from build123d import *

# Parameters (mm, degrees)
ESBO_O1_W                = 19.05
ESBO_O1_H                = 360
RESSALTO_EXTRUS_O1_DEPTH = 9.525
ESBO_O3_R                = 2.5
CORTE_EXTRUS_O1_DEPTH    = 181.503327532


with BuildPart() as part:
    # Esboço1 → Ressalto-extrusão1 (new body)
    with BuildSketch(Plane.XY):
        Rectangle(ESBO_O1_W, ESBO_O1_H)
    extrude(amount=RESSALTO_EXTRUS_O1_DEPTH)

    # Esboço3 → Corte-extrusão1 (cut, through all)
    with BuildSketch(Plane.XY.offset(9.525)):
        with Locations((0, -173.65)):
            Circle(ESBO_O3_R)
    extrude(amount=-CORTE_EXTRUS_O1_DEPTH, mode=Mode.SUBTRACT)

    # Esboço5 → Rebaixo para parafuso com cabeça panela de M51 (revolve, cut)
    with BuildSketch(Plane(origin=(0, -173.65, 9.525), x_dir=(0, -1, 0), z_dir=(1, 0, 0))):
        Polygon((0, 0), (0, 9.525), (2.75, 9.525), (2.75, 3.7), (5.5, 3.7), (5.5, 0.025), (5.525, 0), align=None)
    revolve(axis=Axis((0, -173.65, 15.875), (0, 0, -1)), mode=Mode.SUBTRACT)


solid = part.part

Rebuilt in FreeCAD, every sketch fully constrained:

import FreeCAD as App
import Part
import Sketcher

V = App.Vector
Q = App.Units.Quantity


def add_polygon(sketch, points):
    """Adds a closed chain of lines whose ends are joined by coincident constraints."""
    first, n = sketch.GeometryCount, len(points)
    for a, b in zip(points, points[1:] + points[:1]):
        sketch.addGeometry(Part.LineSegment(App.Vector(*a, 0), App.Vector(*b, 0)), False)
    for i in range(n):
        sketch.addConstraint(Sketcher.Constraint("Coincident", first + i, 2, first + (i + 1) % n, 1))

doc = App.newDocument("Part")
body = doc.addObject("PartDesign::Body", "Body")

# Sketch on XY plane
sketch1 = doc.addObject("Sketcher::SketchObject", "Sketch")
body.addObject(sketch1)
sketch1.AttachmentSupport = (doc.XY_Plane, [""])
sketch1.MapMode = "FlatFace"
add_polygon(sketch1, [(-10, 180), (-10, -180), (10, -180), (10, 180)])  # lines 0-3
sketch1.addConstraint(Sketcher.Constraint("Vertical", 0))
sketch1.addConstraint(Sketcher.Constraint("Horizontal", 1))
sketch1.addConstraint(Sketcher.Constraint("Vertical", 2))
sketch1.addConstraint(Sketcher.Constraint("Horizontal", 3))
sketch1.addConstraint(Sketcher.Constraint("Symmetric", 0, 2, 2, 2, -1, 1))
sketch1.addConstraint(Sketcher.Constraint("DistanceY", 0, 2, 0, 1, 360.0))
sketch1.addConstraint(Sketcher.Constraint("DistanceX", 1, 1, 1, 2, 19.05))
pad1 = doc.addObject("PartDesign::Pad", "Pad")
body.addObject(pad1)
pad1.Profile = sketch1
pad1.Length = 9.525

# Sketch on XY plane
sketch2 = doc.addObject("Sketcher::SketchObject", "Sketch001")
body.addObject(sketch2)
sketch2.AttachmentSupport = (doc.XY_Plane, [""])
sketch2.MapMode = "FlatFace"
sketch2.AttachmentOffset = App.Placement(V(0, 0, 9.525), App.Rotation())
sketch2.addGeometry(Part.Circle(V(0, -173.7, 0), V(0, 0, 1), 2.5), False)
sketch2.addConstraint(Sketcher.Constraint("PointOnObject", 0, 3, -2))
sketch2.addConstraint(Sketcher.Constraint("Diameter", 0, 5.0))
sketch2.addConstraint(Sketcher.Constraint("DistanceY", 0, 3, -1, 1, 173.65))
pocket1 = doc.addObject("PartDesign::Pocket", "Pocket")
body.addObject(pocket1)
pocket1.Profile = sketch2
pocket1.Type = "ThroughAll"

# Sketch on YZ plane
sketch3 = doc.addObject("Sketcher::SketchObject", "Sketch002")
body.addObject(sketch3)
sketch3.AttachmentSupport = (doc.YZ_Plane, [""])
sketch3.MapMode = "FlatFace"
add_polygon(sketch3, [(-173.65, 0), (-173.65, 9.525), (-179.175, 9.525), (-179.15, 9.5), (-179.15, 5.825), (-176.4, 5.825), (-176.4, 0)])  # lines 0-6
sketch3.addGeometry(Part.LineSegment(V(-173.65, 9.525, 0), V(-173.65, 0, 0)), True)  # axis
sketch3.addConstraint(Sketcher.Constraint("Vertical", 0))
sketch3.addConstraint(Sketcher.Constraint("Horizontal", 1))
sketch3.addConstraint(Sketcher.Constraint("Vertical", 3))
sketch3.addConstraint(Sketcher.Constraint("Horizontal", 4))
sketch3.addConstraint(Sketcher.Constraint("Vertical", 5))
sketch3.addConstraint(Sketcher.Constraint("Horizontal", 6))
sketch3.addConstraint(Sketcher.Constraint("Vertical", 7))
sketch3.addConstraint(Sketcher.Constraint("Coincident", 7, 1, 0, 2))
sketch3.addConstraint(Sketcher.Constraint("PointOnObject", 5, 2, -1))
sketch3.addConstraint(Sketcher.Constraint("PointOnObject", 7, 2, -1))
sketch3.addConstraint(Sketcher.Constraint("Equal", 4, 6))
sketch3.addConstraint(Sketcher.Constraint("Angle", 2, Q("-45 deg")))
sketch3.addConstraint(Sketcher.Constraint("DistanceX", 4, 1, 4, 2, 2.75))
sketch3.addConstraint(Sketcher.Constraint("DistanceY", -1, 1, 2, 2, 9.5))
sketch3.addConstraint(Sketcher.Constraint("DistanceX", 4, 2, -1, 1, 176.4))
sketch3.addConstraint(Sketcher.Constraint("DistanceY", 3, 2, 1, 2, 3.7))
sketch3.addConstraint(Sketcher.Constraint("DistanceX", 1, 2, 1, 1, 5.525))
groove = doc.addObject("PartDesign::Groove", "Groove")
body.addObject(groove)
groove.Profile = sketch3
groove.ReferenceAxis = (sketch3, ["Axis0"])
groove.Angle = 360

doc.recompute()
